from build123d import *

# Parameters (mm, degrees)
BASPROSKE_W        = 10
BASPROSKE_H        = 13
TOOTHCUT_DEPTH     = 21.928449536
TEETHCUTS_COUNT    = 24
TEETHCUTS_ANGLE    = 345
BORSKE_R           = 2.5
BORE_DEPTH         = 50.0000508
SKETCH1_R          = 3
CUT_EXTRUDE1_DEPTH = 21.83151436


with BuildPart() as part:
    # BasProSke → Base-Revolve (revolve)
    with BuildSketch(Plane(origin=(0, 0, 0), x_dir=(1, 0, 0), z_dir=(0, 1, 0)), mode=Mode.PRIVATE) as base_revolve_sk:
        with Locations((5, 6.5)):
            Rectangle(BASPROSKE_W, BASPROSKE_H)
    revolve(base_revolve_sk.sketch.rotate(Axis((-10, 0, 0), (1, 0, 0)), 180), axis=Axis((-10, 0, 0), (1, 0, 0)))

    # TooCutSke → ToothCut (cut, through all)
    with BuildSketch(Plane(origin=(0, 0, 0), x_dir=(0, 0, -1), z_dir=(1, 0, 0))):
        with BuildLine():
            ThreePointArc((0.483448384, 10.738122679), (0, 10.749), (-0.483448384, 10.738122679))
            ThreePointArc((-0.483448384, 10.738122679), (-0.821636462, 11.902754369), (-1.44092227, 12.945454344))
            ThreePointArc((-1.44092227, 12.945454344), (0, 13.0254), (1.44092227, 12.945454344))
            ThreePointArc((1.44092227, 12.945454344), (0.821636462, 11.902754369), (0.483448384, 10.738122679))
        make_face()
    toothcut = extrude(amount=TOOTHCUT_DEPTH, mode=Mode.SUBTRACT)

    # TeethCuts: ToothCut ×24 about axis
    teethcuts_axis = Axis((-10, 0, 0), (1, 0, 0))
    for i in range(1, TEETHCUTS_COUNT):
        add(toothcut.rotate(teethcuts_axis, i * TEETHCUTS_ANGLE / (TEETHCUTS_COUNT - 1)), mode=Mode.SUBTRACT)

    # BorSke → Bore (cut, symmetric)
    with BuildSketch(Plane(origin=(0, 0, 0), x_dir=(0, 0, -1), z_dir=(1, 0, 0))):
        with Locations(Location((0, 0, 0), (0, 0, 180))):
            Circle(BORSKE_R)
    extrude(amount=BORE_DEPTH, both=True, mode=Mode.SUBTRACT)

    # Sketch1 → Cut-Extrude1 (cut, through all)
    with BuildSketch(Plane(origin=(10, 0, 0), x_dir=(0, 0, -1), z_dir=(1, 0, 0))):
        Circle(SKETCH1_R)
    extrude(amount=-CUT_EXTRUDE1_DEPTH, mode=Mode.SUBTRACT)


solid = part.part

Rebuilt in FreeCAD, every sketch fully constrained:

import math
import FreeCAD as App
import Part
import Sketcher

V = App.Vector


def add_polygon(sketch, points):
    """Adds a closed chain of lines whose ends are joined by coincident constraints."""
    first, n = sketch.GeometryCount, len(points)
    for a, b in zip(points, points[1:] + points[:1]):
        sketch.addGeometry(Part.LineSegment(App.Vector(*a, 0), App.Vector(*b, 0)), False)
    for i in range(n):
        sketch.addConstraint(Sketcher.Constraint("Coincident", first + i, 2, first + (i + 1) % n, 1))

doc = App.newDocument("Part")
params = doc.addObject("Spreadsheet::Sheet", "Params")
for row, (alias, value) in enumerate([
    ("sketch1_width", "10 mm"),
    ("sketch1_height", "13 mm"),
    ("revolution_angle", "360 deg"),
    ("sketch2_radius", "4.8 mm"),
    ("sketch3_diameter", "5 mm"),
    ("pocket2_length", "100.000102 mm"),
    ("sketch4_diameter", "6 mm"),
], start=1):
    params.set(f"A{row}", alias)
    params.set(f"B{row}", "=" + value)
    params.setAlias(f"B{row}", alias)

body = doc.addObject("PartDesign::Body", "Body")

sketch1 = doc.addObject("Sketcher::SketchObject", "Sketch")
body.addObject(sketch1)
sketch1.AttachmentSupport = (doc.XZ_Plane, [""])
sketch1.MapMode = "FlatFace"
add_polygon(sketch1, [(0, -13), (0, 0), (10, 0), (10, -13)])
sketch1.addConstraint([
    Sketcher.Constraint("Vertical", 0),
    Sketcher.Constraint("Horizontal", 1),
    Sketcher.Constraint("Vertical", 2),
    Sketcher.Constraint("Horizontal", 3),
    Sketcher.Constraint("Coincident", 0, 2, -1, 1),
    Sketcher.Constraint("DistanceX", 1, 1, 1, 2, 10.0),
    Sketcher.Constraint("DistanceY", 0, 1, 0, 2, 13.0),
])
sketch1.setExpression("Constraints[9]", "Params.sketch1_width")
sketch1.setExpression("Constraints[10]", "Params.sketch1_height")
revolution = doc.addObject("PartDesign::Revolution", "Revolution")
body.addObject(revolution)
revolution.Profile = sketch1
revolution.ReferenceAxis = (sketch1, ["H_Axis"])
revolution.setExpression("Angle", "Params.revolution_angle")

sketch2 = doc.addObject("Sketcher::SketchObject", "Sketch001")
body.addObject(sketch2)
sketch2.AttachmentSupport = (doc.YZ_Plane, [""])
sketch2.MapMode = "FlatFace"
sketch2.addGeometry([
    Part.ArcOfCircle(Part.Circle(V(0, 0, 0), V(0, 0, 1), 10.7), math.radians(-2.58), math.radians(2.58)),
    Part.ArcOfCircle(Part.Circle(V(10, -5.2, 0), V(0, 0, 1), 4.8), math.radians(52), math.radians(81)),
    Part.ArcOfCircle(Part.Circle(V(0, 0, 0), V(0, 0, 1), 13), math.radians(-6.35), math.radians(6.35)),
    Part.ArcOfCircle(Part.Circle(V(10, 5.2, 0), V(0, 0, 1), 4.8), math.radians(-81), math.radians(-52)),
], False)
sketch2.addConstraint([
    Sketcher.Constraint("Coincident", 0, 1, 1, 2),
    Sketcher.Constraint("Coincident", 1, 1, 2, 1),
    Sketcher.Constraint("Coincident", 2, 2, 3, 2),
    Sketcher.Constraint("Coincident", 3, 1, 0, 2),
    Sketcher.Constraint("Coincident", 0, 3, -1, 1),
    Sketcher.Constraint("Coincident", 2, 3, -1, 1),
    Sketcher.Constraint("Equal", 1, 3),
    Sketcher.Constraint("Symmetric", 1, 3, 3, 3, -1),
    Sketcher.Constraint("Radius", 1, 4.8),
    Sketcher.Constraint("Radius", 0, 10.749),
    Sketcher.Constraint("Radius", 2, 13.0254),
    Sketcher.Constraint("DistanceY", 1, 3, -1, 1, 5.225202),
    Sketcher.Constraint("DistanceX", -1, 1, 1, 3, 9.992621),
])
sketch2.setExpression("Constraints[8]", "Params.sketch2_radius")
pocket1 = doc.addObject("PartDesign::Pocket", "Pocket")
body.addObject(pocket1)
pocket1.Profile = sketch2
pocket1.Type = "ThroughAll"
pocket1.Reversed = True
doc.recompute()

polarpattern = doc.addObject("PartDesign::PolarPattern", "PolarPattern")
body.addObject(polarpattern)
polarpattern.Originals = [pocket1]
polarpattern.Axis = (doc.X_Axis, [""])
polarpattern.Angle = 360
polarpattern.Occurrences = 24
body.Tip = polarpattern

sketch3 = doc.addObject("Sketcher::SketchObject", "Sketch002")
body.addObject(sketch3)
sketch3.AttachmentSupport = (doc.YZ_Plane, [""])
sketch3.MapMode = "FlatFace"
sketch3.addGeometry(Part.Circle(V(0, 0, 0), V(0, 0, 1), 2.5), False)
sketch3.addConstraint([
    Sketcher.Constraint("Coincident", 0, 3, -1, 1),
    Sketcher.Constraint("Diameter", 0, 5.0),
])
sketch3.setExpression("Constraints[1]", "Params.sketch3_diameter")
pocket2 = doc.addObject("PartDesign::Pocket", "Pocket001")
body.addObject(pocket2)
pocket2.Profile = sketch3
pocket2.setExpression("Length", "Params.pocket2_length")
pocket2.Midplane = True

sketch4 = doc.addObject("Sketcher::SketchObject", "Sketch003")
body.addObject(sketch4)
sketch4.AttachmentSupport = (doc.YZ_Plane, [""])
sketch4.MapMode = "FlatFace"
sketch4.AttachmentOffset = App.Placement(V(0, 0, 10), App.Rotation())
sketch4.addGeometry(Part.Circle(V(0, 0, 0), V(0, 0, 1), 3), False)
sketch4.addConstraint([
    Sketcher.Constraint("Coincident", 0, 3, -1, 1),
    Sketcher.Constraint("Diameter", 0, 6.0),
])
sketch4.setExpression("Constraints[1]", "Params.sketch4_diameter")
pocket3 = doc.addObject("PartDesign::Pocket", "Pocket002")
body.addObject(pocket3)
pocket3.Profile = sketch4
pocket3.Type = "ThroughAll"

doc.recompute()
